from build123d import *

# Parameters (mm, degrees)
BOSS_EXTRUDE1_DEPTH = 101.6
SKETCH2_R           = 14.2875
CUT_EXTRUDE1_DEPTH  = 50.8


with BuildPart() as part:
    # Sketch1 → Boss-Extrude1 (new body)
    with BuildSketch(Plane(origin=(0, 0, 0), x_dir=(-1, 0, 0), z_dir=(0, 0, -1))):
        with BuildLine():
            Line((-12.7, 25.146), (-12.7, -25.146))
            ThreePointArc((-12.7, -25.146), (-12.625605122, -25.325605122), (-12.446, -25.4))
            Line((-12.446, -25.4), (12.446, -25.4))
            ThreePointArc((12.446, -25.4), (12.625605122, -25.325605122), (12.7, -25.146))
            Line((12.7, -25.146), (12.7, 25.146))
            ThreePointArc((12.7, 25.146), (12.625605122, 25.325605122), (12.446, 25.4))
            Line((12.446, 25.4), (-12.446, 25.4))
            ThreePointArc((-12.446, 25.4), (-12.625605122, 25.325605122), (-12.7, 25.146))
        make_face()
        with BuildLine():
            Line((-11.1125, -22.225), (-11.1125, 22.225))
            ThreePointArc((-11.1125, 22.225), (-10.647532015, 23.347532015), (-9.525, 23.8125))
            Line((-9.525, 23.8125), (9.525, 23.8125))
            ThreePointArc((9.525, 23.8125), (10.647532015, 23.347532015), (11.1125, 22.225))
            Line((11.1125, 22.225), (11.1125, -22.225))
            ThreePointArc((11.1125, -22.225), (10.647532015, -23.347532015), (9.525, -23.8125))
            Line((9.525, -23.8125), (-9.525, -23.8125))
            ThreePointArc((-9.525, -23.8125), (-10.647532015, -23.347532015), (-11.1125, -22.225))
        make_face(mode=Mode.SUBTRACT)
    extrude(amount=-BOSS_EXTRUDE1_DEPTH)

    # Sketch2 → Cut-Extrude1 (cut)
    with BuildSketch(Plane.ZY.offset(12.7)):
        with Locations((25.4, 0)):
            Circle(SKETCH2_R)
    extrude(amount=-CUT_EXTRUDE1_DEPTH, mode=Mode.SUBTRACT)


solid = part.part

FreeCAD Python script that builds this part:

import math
import FreeCAD as App
import Part
import Sketcher

V = App.Vector
Q = App.Units.Quantity

doc = App.newDocument("Part")
params = doc.addObject("Spreadsheet::Sheet", "Params")
for row, (alias, value) in enumerate([
    ("sketch1_radius", "0.01 in"),
    ("sketch1_radius2", "0.0625 in"),
    ("sketch1_width", "0.98 in"),
    ("sketch1_width2", "0.75 in"),
    ("sketch1_height", "1.75 in"),
    ("pad1_length", "4 in"),
    ("sketch2_diameter", "1.125 in"),
    ("pocket1_length", "2 in"),
], start=1):
    params.set(f"A{row}", alias)
    params.set(f"B{row}", "=" + value)
    params.setAlias(f"B{row}", alias)

body = doc.addObject("PartDesign::Body", "Body")

sketch1 = body.newObject("Sketcher::SketchObject", "Sketch")
sketch1.AttachmentSupport = (doc.getObject("XY_Plane"), [""])
sketch1.MapMode = "FlatFace"
sketch1.addGeometry(Part.LineSegment(V(12.7, 25.15, 0), V(12.7, -25.15, 0)), False)
sketch1.addGeometry(Part.ArcOfCircle(Part.Circle(V(12.45, -25.15, 0), V(0, 0, 1), 0.25), math.radians(-90), math.radians(0)), False)
sketch1.addGeometry(Part.LineSegment(V(12.45, -25.4, 0), V(-12.45, -25.4, 0)), False)
sketch1.addGeometry(Part.ArcOfCircle(Part.Circle(V(-12.45, -25.15, 0), V(0, 0, 1), 0.25), math.radians(-180), math.radians(-90)), False)
sketch1.addGeometry(Part.LineSegment(V(-12.7, -25.15, 0), V(-12.7, 25.15, 0)), False)
sketch1.addGeometry(Part.ArcOfCircle(Part.Circle(V(-12.45, 25.15, 0), V(0, 0, 1), 0.25), math.radians(90), math.radians(180)), False)
sketch1.addGeometry(Part.LineSegment(V(-12.45, 25.4, 0), V(12.45, 25.4, 0)), False)
sketch1.addGeometry(Part.ArcOfCircle(Part.Circle(V(12.45, 25.15, 0), V(0, 0, 1), 0.25), math.radians(0), math.radians(90)), False)
sketch1.addGeometry(Part.ArcOfCircle(Part.Circle(V(9.53, -22.23, 0), V(0, 0, 1), 1.59), math.radians(-90), math.radians(0)), False)
sketch1.addGeometry(Part.LineSegment(V(11.11, -22.23, 0), V(11.11, 22.23, 0)), False)
sketch1.addGeometry(Part.ArcOfCircle(Part.Circle(V(9.53, 22.23, 0), V(0, 0, 1), 1.59), math.radians(0), math.radians(90)), False)
sketch1.addGeometry(Part.LineSegment(V(9.53, 23.81, 0), V(-9.53, 23.81, 0)), False)
sketch1.addGeometry(Part.ArcOfCircle(Part.Circle(V(-9.53, 22.23, 0), V(0, 0, 1), 1.59), math.radians(90), math.radians(180)), False)
sketch1.addGeometry(Part.LineSegment(V(-11.11, 22.23, 0), V(-11.11, -22.23, 0)), False)
sketch1.addGeometry(Part.ArcOfCircle(Part.Circle(V(-9.53, -22.23, 0), V(0, 0, 1), 1.59), math.radians(180), math.radians(270)), False)
sketch1.addGeometry(Part.LineSegment(V(-9.53, -23.81, 0), V(9.53, -23.81, 0)), False)
sketch1.addConstraint(Sketcher.Constraint("Tangent", 0, 2, 1, 2))
sketch1.addConstraint(Sketcher.Constraint("Tangent", 1, 1, 2, 1))
sketch1.addConstraint(Sketcher.Constraint("Tangent", 2, 2, 3, 2))
sketch1.addConstraint(Sketcher.Constraint("Tangent", 3, 1, 4, 1))
sketch1.addConstraint(Sketcher.Constraint("Tangent", 4, 2, 5, 2))
sketch1.addConstraint(Sketcher.Constraint("Tangent", 5, 1, 6, 1))
sketch1.addConstraint(Sketcher.Constraint("Tangent", 6, 2, 7, 2))
sketch1.addConstraint(Sketcher.Constraint("Tangent", 7, 1, 0, 1))
sketch1.addConstraint(Sketcher.Constraint("Tangent", 8, 2, 9, 1))
sketch1.addConstraint(Sketcher.Constraint("Tangent", 9, 2, 10, 1))
sketch1.addConstraint(Sketcher.Constraint("Tangent", 10, 2, 11, 1))
sketch1.addConstraint(Sketcher.Constraint("Tangent", 11, 2, 12, 1))
sketch1.addConstraint(Sketcher.Constraint("Tangent", 12, 2, 13, 1))
sketch1.addConstraint(Sketcher.Constraint("Tangent", 13, 2, 14, 1))
sketch1.addConstraint(Sketcher.Constraint("Tangent", 14, 2, 15, 1))
sketch1.addConstraint(Sketcher.Constraint("Tangent", 15, 2, 8, 1))
sketch1.addConstraint(Sketcher.Constraint("Vertical", 0))
sketch1.addConstraint(Sketcher.Constraint("Horizontal", 2))
sketch1.addConstraint(Sketcher.Constraint("Vertical", 4))
sketch1.addConstraint(Sketcher.Constraint("Horizontal", 6))
sketch1.addConstraint(Sketcher.Constraint("Vertical", 9))
sketch1.addConstraint(Sketcher.Constraint("Horizontal", 11))
sketch1.addConstraint(Sketcher.Constraint("Vertical", 13))
sketch1.addConstraint(Sketcher.Constraint("Horizontal", 15))
sketch1.addConstraint(Sketcher.Constraint("Equal", 1, 3))
sketch1.addConstraint(Sketcher.Constraint("Equal", 3, 5))
sketch1.addConstraint(Sketcher.Constraint("Equal", 5, 7))
sketch1.addConstraint(Sketcher.Constraint("Equal", 8, 10))
sketch1.addConstraint(Sketcher.Constraint("Equal", 10, 12))
sketch1.addConstraint(Sketcher.Constraint("Equal", 12, 14))
sketch1.addConstraint(Sketcher.Constraint("Symmetric", 1, 3, 5, 3, -1, 1))
sketch1.addConstraint(Sketcher.Constraint("Symmetric", 8, 3, 12, 3, -1, 1))
sketch1.addConstraint(Sketcher.Constraint("Radius", 1, Q("0.01 in")))
sketch1.addConstraint(Sketcher.Constraint("DistanceY", 1, 1, -1, 1, Q("1 in")))
sketch1.addConstraint(Sketcher.Constraint("Radius", 8, Q("0.0625 in")))
sketch1.addConstraint(Sketcher.Constraint("DistanceX", 2, 2, 2, 1, Q("0.98 in")))
sketch1.addConstraint(Sketcher.Constraint("DistanceX", 11, 2, 11, 1, Q("0.75 in")))
sketch1.addConstraint(Sketcher.Constraint("DistanceY", 9, 1, 9, 2, Q("1.75 in")))
sketch1.setExpression("Constraints[32]", "Params.sketch1_radius")
sketch1.setExpression("Constraints[34]", "Params.sketch1_radius2")
sketch1.setExpression("Constraints[35]", "Params.sketch1_width")
sketch1.setExpression("Constraints[36]", "Params.sketch1_width2")
sketch1.setExpression("Constraints[37]", "Params.sketch1_height")
pad1 = body.newObject("PartDesign::Pad", "Pad")
pad1.Profile = sketch1
pad1.setExpression("Length", "Params.pad1_length")

sketch2 = body.newObject("Sketcher::SketchObject", "Sketch001")
sketch2.AttachmentSupport = (doc.getObject("YZ_Plane"), [""])
sketch2.MapMode = "FlatFace"
sketch2.AttachmentOffset = App.Placement(V(0, 0, -0.5 * 25.4), App.Rotation())
sketch2.addGeometry(Part.Circle(V(0, 25, 0), V(0, 0, 1), 14), False)
sketch2.addConstraint(Sketcher.Constraint("PointOnObject", 0, 3, -2))
sketch2.addConstraint(Sketcher.Constraint("Diameter", 0, Q("1.125 in")))
sketch2.addConstraint(Sketcher.Constraint("DistanceY", -1, 1, 0, 3, Q("1 in")))
sketch2.setExpression("Constraints[1]", "Params.sketch2_diameter")
pocket1 = body.newObject("PartDesign::Pocket", "Pocket")
pocket1.Profile = sketch2
pocket1.setExpression("Length", "Params.pocket1_length")
pocket1.Reversed = True

doc.recompute()
